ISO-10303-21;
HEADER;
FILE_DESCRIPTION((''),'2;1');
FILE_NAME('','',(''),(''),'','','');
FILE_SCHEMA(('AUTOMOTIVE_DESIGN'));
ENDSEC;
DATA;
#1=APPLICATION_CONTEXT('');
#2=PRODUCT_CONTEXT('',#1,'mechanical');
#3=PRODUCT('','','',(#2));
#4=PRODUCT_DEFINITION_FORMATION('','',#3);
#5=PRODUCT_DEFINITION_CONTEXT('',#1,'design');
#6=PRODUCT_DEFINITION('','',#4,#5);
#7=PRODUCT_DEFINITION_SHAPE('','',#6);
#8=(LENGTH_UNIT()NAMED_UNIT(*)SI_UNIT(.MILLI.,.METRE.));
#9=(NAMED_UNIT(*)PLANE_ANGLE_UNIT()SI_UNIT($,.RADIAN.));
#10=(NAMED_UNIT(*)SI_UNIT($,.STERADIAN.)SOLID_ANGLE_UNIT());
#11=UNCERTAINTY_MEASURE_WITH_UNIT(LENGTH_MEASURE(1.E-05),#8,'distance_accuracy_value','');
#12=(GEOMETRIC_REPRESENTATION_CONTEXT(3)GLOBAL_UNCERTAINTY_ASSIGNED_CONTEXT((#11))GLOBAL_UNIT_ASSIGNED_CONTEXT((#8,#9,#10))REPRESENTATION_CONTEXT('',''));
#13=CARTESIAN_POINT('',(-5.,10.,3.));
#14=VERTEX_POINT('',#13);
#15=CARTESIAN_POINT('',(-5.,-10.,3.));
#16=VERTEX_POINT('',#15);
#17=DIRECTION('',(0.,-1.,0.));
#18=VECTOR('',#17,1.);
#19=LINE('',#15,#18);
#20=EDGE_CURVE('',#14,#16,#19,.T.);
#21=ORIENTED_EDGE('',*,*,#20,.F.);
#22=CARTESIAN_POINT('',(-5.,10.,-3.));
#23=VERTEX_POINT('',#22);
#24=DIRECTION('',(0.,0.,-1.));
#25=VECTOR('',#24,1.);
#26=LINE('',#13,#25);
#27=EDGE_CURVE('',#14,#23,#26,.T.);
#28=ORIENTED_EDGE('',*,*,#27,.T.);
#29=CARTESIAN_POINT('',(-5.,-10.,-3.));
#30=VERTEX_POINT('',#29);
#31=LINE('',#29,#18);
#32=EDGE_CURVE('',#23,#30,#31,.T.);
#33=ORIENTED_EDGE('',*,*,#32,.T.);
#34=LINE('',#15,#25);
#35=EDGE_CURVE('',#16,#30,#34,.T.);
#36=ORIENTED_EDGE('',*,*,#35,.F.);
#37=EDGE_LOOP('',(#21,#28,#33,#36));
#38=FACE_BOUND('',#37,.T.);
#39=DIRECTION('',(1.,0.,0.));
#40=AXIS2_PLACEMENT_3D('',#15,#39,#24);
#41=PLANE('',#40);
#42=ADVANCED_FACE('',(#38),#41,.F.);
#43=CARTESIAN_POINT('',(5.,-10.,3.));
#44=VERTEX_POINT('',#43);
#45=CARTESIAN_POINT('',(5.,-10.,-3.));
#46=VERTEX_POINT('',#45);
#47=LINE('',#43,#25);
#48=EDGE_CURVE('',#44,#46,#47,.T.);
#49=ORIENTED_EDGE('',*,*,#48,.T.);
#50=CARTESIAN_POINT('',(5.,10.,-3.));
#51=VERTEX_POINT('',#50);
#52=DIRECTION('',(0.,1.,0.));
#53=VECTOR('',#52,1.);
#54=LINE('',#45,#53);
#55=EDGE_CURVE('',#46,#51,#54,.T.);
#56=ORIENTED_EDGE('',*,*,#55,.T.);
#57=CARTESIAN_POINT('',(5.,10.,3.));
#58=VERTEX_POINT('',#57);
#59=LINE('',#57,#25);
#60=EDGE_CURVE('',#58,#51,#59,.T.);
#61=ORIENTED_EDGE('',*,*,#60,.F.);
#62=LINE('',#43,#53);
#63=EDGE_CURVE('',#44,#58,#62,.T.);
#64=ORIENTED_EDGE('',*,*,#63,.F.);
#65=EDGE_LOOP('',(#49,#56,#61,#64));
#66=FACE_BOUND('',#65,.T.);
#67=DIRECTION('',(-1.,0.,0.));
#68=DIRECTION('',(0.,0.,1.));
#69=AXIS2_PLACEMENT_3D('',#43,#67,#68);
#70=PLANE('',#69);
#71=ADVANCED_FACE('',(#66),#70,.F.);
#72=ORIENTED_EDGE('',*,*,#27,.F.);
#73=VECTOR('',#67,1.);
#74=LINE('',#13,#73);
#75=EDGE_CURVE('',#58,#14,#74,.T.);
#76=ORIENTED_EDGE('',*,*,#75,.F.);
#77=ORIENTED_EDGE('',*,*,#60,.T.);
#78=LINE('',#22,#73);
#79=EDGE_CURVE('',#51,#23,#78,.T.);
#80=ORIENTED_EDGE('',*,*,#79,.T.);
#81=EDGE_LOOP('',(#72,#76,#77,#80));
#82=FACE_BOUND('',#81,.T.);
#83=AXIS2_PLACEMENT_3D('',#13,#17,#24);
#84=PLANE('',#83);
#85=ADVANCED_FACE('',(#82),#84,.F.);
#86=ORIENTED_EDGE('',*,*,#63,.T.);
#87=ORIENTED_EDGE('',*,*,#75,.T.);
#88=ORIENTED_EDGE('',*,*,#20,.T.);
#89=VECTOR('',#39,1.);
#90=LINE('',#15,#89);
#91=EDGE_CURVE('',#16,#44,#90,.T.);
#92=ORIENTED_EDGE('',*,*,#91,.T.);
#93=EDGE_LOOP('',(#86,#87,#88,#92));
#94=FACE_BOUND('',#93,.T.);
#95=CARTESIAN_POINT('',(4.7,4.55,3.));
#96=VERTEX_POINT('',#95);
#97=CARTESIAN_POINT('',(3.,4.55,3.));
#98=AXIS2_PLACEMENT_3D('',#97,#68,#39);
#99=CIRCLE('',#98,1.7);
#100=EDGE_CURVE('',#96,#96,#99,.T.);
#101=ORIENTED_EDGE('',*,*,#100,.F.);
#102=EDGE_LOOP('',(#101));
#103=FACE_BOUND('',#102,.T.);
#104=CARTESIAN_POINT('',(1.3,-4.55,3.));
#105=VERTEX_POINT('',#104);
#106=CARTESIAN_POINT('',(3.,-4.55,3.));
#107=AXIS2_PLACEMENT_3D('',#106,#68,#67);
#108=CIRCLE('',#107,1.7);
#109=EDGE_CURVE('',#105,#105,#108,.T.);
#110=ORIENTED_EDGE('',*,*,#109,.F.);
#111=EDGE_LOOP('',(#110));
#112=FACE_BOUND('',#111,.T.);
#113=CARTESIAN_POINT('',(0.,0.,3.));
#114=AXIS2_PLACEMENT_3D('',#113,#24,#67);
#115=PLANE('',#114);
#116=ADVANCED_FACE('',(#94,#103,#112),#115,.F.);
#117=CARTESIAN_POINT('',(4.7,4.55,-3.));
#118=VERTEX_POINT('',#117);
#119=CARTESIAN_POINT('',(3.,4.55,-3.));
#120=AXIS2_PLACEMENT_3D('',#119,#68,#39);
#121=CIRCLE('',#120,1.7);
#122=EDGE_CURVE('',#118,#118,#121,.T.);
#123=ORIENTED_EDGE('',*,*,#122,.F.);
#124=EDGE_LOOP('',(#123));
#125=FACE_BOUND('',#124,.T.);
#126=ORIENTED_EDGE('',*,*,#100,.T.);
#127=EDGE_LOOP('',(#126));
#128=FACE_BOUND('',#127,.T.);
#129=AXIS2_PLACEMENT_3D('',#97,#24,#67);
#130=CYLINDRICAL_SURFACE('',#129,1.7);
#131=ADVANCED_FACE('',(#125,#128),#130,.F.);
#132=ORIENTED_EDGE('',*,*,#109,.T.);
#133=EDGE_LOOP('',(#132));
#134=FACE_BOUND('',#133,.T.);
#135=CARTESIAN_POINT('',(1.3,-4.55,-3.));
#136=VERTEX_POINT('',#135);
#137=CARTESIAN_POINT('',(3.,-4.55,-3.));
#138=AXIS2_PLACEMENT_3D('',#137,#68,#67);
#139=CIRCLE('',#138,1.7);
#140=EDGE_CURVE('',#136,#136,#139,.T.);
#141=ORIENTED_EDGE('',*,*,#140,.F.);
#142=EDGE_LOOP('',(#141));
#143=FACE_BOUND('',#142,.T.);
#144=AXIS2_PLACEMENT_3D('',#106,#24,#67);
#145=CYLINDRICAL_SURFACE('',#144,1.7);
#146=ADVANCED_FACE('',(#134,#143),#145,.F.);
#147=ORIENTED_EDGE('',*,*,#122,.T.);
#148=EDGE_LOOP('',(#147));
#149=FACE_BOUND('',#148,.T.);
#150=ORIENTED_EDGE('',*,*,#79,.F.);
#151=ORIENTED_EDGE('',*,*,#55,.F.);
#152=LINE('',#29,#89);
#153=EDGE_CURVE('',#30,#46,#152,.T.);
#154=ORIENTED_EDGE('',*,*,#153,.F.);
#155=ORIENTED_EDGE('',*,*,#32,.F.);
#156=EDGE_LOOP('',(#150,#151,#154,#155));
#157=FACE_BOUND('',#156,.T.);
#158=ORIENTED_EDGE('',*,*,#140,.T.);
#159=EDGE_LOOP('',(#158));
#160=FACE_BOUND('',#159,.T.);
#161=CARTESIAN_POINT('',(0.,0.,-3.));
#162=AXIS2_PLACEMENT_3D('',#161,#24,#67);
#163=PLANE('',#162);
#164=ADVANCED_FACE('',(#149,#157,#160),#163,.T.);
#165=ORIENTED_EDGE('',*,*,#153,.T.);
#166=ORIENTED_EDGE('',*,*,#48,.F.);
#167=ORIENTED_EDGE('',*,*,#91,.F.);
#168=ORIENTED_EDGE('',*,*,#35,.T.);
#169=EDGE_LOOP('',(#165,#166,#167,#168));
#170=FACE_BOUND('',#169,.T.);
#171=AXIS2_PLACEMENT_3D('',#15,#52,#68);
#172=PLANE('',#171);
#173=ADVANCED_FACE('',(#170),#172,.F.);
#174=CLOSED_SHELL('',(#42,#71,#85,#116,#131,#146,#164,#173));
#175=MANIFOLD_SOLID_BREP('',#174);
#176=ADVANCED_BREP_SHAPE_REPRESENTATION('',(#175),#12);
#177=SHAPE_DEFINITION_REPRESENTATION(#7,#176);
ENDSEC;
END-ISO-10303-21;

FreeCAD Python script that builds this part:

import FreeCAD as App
import Part
import Sketcher
from FreeCAD import Vector


def add_polygon(sketch, points):
    """Adds a closed chain of lines whose ends are joined by coincident constraints."""
    first, n = sketch.GeometryCount, len(points)
    for a, b in zip(points, points[1:] + points[:1]):
        sketch.addGeometry(Part.LineSegment(App.Vector(*a, 0), App.Vector(*b, 0)), False)
    for i in range(n):
        sketch.addConstraint(Sketcher.Constraint("Coincident", first + i, 2, first + (i + 1) % n, 1))

doc = App.newDocument("Part")
body = doc.addObject("PartDesign::Body", "Body")

# Sketch on XY plane
sketch1 = body.newObject("Sketcher::SketchObject", "Sketch")
sketch1.AttachmentSupport = (doc.getObject("XY_Plane"), [""])
sketch1.MapMode = "FlatFace"
add_polygon(sketch1, [(-5, 10), (-5, -10), (5, -10), (5, 10)])  # lines 0-3
sketch1.addGeometry(Part.Circle(Vector(3, -4.55, 0), Vector(0, 0, 1), 1.7), False)  # 4
sketch1.addGeometry(Part.Circle(Vector(3, 4.55, 0), Vector(0, 0, 1), 1.7), False)  # 5
sketch1.addConstraint(Sketcher.Constraint("Vertical", 0))
sketch1.addConstraint(Sketcher.Constraint("Horizontal", 1))
sketch1.addConstraint(Sketcher.Constraint("Vertical", 2))
sketch1.addConstraint(Sketcher.Constraint("Horizontal", 3))
sketch1.addConstraint(Sketcher.Constraint("Equal", 4, 5))
sketch1.addConstraint(Sketcher.Constraint("Symmetric", 0, 2, 2, 2, -1, 1))
sketch1.addConstraint(Sketcher.Constraint("Symmetric", 4, 3, 5, 3, -1))
sketch1.addConstraint(Sketcher.Constraint("Diameter", 4, 3.4))
sketch1.addConstraint(Sketcher.Constraint("DistanceX", 1, 1, 1, 2, 10.0))
sketch1.addConstraint(Sketcher.Constraint("DistanceY", 0, 2, 0, 1, 20.0))
sketch1.addConstraint(Sketcher.Constraint("DistanceX", -1, 1, 4, 3, 3.0))
sketch1.addConstraint(Sketcher.Constraint("DistanceY", 4, 3, 5, 3, 9.1))
pad1 = body.newObject("PartDesign::Pad", "Pad")
pad1.Profile = sketch1
pad1.Length = 6
pad1.Midplane = True

doc.recompute()
